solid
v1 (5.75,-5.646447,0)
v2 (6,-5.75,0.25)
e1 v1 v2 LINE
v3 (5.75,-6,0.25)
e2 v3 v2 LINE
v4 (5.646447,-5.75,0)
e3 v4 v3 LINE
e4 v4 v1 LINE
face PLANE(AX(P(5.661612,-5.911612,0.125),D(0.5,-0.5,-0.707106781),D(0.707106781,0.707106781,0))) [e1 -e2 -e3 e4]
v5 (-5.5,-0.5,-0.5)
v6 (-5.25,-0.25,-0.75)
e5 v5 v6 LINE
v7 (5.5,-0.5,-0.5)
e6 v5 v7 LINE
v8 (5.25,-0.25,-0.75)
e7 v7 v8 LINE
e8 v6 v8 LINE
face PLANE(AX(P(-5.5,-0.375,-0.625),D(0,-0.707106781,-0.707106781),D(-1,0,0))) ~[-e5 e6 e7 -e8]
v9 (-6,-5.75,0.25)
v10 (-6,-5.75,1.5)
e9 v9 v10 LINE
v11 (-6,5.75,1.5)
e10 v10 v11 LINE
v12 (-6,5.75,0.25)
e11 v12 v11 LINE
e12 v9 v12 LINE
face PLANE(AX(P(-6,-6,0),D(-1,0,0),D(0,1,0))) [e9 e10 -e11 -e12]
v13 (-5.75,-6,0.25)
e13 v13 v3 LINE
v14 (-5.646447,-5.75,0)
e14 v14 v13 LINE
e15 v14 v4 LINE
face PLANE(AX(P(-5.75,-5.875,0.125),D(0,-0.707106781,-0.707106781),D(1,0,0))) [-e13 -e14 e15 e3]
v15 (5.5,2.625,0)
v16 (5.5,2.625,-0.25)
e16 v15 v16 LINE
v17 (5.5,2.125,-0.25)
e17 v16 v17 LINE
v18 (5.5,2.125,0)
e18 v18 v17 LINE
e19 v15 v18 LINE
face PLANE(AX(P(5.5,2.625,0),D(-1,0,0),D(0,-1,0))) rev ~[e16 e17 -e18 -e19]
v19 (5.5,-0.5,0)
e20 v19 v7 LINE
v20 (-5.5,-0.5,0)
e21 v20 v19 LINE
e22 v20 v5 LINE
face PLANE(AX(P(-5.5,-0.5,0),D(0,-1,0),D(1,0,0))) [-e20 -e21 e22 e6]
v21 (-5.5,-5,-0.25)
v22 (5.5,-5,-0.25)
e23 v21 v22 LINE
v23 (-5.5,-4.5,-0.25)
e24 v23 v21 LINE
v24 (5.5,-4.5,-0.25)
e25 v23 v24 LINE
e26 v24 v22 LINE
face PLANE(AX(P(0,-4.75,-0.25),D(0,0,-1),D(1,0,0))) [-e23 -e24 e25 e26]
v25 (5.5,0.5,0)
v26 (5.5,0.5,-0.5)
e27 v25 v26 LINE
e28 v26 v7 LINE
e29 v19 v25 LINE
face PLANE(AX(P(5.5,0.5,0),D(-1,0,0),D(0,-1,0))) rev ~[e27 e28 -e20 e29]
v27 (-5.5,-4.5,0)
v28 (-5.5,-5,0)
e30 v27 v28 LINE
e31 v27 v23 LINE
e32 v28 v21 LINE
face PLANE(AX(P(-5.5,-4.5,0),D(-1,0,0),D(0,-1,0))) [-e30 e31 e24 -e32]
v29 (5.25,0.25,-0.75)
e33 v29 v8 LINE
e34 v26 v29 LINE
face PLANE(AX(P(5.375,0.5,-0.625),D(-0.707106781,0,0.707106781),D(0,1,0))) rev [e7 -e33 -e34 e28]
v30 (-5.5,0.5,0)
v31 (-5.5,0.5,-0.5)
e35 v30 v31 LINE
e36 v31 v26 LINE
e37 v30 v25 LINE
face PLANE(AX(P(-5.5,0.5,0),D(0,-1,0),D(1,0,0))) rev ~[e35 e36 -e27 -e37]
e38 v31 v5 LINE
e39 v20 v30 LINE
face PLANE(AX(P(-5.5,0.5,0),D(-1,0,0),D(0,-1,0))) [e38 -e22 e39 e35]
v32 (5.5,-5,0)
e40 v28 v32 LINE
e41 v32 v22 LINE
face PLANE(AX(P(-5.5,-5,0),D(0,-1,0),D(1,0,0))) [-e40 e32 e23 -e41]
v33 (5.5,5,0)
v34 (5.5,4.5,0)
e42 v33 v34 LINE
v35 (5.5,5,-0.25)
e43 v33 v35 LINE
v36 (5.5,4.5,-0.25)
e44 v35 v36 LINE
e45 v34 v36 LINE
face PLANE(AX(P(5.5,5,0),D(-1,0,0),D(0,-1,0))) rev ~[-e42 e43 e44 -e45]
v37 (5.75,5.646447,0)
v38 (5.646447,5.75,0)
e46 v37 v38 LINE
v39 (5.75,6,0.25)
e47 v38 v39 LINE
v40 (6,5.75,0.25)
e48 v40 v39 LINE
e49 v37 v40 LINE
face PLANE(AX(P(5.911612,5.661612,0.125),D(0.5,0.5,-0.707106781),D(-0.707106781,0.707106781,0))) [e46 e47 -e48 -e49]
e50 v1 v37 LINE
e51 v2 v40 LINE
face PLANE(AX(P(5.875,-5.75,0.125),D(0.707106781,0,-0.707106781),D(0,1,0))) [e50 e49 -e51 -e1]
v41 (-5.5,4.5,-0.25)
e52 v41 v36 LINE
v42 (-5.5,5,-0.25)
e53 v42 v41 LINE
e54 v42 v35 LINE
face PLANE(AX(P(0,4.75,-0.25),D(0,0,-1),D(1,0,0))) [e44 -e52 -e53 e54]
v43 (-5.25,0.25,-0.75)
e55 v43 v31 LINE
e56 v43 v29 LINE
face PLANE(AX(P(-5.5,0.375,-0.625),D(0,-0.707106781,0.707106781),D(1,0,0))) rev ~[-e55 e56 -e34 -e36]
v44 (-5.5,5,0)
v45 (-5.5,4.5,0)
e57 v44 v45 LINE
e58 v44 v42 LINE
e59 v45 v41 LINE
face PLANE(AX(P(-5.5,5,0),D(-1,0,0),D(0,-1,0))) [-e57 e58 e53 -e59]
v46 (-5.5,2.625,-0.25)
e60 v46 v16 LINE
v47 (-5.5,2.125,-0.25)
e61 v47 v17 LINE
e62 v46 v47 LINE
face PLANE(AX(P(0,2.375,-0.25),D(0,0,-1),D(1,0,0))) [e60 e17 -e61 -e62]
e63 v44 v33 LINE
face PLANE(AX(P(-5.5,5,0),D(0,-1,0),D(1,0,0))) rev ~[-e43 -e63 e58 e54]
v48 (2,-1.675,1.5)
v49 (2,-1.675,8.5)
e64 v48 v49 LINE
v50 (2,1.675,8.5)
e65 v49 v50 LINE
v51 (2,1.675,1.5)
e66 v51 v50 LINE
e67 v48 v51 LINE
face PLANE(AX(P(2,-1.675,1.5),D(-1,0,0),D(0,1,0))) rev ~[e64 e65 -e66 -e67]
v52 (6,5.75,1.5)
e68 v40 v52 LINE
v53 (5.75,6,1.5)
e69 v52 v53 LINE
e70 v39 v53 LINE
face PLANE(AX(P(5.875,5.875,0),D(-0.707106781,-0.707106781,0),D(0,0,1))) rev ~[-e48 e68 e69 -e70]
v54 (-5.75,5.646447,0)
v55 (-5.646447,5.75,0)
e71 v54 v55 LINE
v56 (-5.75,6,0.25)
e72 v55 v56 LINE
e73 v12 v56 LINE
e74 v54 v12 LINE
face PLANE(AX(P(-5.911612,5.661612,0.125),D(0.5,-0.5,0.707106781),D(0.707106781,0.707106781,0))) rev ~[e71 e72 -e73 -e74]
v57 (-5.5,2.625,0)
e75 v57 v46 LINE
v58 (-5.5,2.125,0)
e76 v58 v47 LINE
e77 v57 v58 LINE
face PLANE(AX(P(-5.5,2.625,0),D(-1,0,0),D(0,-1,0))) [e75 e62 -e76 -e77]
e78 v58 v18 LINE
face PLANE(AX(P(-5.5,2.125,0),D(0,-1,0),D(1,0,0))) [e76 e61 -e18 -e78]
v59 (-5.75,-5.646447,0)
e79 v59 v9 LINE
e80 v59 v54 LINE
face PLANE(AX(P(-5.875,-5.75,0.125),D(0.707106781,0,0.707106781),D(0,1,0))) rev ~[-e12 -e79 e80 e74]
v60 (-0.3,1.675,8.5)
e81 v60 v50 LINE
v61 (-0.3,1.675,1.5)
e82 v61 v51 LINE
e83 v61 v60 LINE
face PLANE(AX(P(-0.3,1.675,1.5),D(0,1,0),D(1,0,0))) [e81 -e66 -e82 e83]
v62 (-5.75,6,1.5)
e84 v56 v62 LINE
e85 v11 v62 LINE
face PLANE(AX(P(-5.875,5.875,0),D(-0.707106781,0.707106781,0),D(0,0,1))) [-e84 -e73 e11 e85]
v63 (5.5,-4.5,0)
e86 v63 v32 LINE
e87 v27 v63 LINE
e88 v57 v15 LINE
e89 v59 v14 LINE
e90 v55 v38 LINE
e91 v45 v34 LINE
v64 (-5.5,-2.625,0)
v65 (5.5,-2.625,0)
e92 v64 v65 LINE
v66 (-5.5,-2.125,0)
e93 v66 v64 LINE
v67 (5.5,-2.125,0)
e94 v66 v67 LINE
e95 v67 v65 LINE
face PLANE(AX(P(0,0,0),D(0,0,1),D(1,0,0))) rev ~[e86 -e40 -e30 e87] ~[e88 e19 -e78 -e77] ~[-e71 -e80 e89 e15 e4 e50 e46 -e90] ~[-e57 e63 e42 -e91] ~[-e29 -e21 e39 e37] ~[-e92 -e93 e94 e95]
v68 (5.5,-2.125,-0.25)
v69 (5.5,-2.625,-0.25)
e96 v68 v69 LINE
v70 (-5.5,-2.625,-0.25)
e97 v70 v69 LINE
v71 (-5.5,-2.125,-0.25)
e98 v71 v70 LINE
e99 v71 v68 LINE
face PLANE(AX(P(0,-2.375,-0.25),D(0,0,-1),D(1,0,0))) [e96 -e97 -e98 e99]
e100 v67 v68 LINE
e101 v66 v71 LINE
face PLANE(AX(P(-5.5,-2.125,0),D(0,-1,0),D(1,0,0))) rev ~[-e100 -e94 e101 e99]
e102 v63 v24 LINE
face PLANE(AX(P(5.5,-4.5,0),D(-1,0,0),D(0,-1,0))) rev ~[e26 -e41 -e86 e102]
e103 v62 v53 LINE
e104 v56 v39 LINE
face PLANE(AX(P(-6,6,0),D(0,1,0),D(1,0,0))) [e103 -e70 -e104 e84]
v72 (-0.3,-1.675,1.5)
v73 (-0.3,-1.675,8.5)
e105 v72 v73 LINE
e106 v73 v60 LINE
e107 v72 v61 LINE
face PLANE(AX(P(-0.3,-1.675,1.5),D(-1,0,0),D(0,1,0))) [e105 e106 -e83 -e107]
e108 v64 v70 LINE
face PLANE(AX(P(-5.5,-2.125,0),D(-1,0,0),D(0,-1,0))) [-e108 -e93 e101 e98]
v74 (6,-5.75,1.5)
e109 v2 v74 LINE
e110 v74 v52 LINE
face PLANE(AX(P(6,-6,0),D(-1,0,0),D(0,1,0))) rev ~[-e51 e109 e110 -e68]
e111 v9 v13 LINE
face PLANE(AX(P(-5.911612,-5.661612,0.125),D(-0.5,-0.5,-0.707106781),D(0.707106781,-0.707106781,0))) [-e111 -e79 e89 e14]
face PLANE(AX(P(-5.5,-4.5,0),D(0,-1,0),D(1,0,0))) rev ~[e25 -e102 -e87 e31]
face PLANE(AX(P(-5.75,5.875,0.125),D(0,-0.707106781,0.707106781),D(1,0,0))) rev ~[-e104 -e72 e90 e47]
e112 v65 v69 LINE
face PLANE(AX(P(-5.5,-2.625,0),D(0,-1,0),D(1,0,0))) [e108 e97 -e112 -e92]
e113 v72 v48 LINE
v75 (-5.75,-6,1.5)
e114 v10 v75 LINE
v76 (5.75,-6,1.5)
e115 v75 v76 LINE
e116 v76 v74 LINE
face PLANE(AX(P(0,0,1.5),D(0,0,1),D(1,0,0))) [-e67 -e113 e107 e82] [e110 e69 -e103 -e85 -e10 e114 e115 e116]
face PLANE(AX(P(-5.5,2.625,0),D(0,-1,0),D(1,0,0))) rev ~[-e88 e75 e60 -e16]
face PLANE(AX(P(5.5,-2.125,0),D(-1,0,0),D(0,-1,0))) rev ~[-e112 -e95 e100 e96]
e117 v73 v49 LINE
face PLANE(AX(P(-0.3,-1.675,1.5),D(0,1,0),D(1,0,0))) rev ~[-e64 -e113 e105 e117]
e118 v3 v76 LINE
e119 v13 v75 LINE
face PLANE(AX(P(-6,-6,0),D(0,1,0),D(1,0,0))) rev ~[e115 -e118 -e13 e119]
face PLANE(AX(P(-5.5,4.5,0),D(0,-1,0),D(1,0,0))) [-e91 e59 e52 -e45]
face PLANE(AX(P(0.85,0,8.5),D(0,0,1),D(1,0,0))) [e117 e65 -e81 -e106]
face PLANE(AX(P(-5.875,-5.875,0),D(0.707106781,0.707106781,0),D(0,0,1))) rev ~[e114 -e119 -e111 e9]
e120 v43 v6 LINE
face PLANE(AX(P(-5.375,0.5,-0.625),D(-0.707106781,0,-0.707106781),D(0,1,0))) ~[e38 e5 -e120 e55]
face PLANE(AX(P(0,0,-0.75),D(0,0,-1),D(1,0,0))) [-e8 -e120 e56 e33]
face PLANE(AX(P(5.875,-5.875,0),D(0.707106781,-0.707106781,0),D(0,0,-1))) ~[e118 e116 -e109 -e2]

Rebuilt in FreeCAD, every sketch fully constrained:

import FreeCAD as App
import Part
import Sketcher

V = App.Vector


def edges_at(feature, points):
    """Names of the edges that pass closest to the given points."""
    edges = feature.Shape.Edges
    near = lambda p: min(range(len(edges)), key=lambda i: edges[i].distToShape(Part.Vertex(*p))[0])
    return sorted({f"Edge{near(p) + 1}" for p in points})

doc = App.newDocument("Part")
params = doc.addObject("Spreadsheet::Sheet", "Params")
for row, (alias, value) in enumerate([
    ("sketch1_width", "12 mm"),
    ("pad1_length", "1.5 mm"),
    ("sketch2_width", "2.3 mm"),
    ("sketch2_height", "3.35 mm"),
    ("pad2_length", "7 mm"),
    ("sketch3_width", "11 mm"),
    ("sketch3_height", "0.5 mm"),
    ("pad3_length", "0.25 mm"),
    ("linearpattern_pitch", "2.375 mm"),
    ("sketch4_width", "11 mm"),
    ("sketch4_height", "1 mm"),
    ("pad4_length", "0.75 mm"),
    ("chamfer_size", "0.25 mm"),
    ("chamfer2_size", "0.25 mm"),
    ("chamfer3_size", "0.25 mm"),
], start=1):
    params.set(f"A{row}", alias)
    params.set(f"B{row}", "=" + value)
    params.setAlias(f"B{row}", alias)

body = doc.addObject("PartDesign::Body", "Body")

sketch1 = body.newObject("Sketcher::SketchObject", "Sketch")
sketch1.AttachmentSupport = (doc.getObject("XY_Plane"), [""])
sketch1.MapMode = "FlatFace"
sketch1.addGeometry([
    Part.LineSegment(V(-6, 6, 0), V(-6, -6, 0)),
    Part.LineSegment(V(-6, -6, 0), V(6, -6, 0)),
    Part.LineSegment(V(6, -6, 0), V(6, 6, 0)),
    Part.LineSegment(V(6, 6, 0), V(-6, 6, 0)),
], False)
sketch1.addConstraint([
    Sketcher.Constraint("Coincident", 0, 2, 1, 1),
    Sketcher.Constraint("Coincident", 1, 2, 2, 1),
    Sketcher.Constraint("Coincident", 2, 2, 3, 1),
    Sketcher.Constraint("Coincident", 3, 2, 0, 1),
    Sketcher.Constraint("Vertical", 0),
    Sketcher.Constraint("Horizontal", 1),
    Sketcher.Constraint("Vertical", 2),
    Sketcher.Constraint("Horizontal", 3),
    Sketcher.Constraint("Symmetric", 0, 2, 2, 2, -1, 1),
    Sketcher.Constraint("Equal", 3, 0),
    Sketcher.Constraint("DistanceX", 1, 1, 1, 2, 12.0),
])
sketch1.setExpression("Constraints[10]", "Params.sketch1_width")
pad1 = body.newObject("PartDesign::Pad", "Pad")
pad1.Profile = sketch1
pad1.setExpression("Length", "Params.pad1_length")

sketch2 = body.newObject("Sketcher::SketchObject", "Sketch001")
sketch2.AttachmentSupport = (doc.getObject("XY_Plane"), [""])
sketch2.MapMode = "FlatFace"
sketch2.AttachmentOffset = App.Placement(V(0, 0, 1.5), App.Rotation())
sketch2.addGeometry([
    Part.LineSegment(V(-0.3, 1.7, 0), V(-0.3, -1.7, 0)),
    Part.LineSegment(V(-0.3, -1.7, 0), V(2, -1.7, 0)),
    Part.LineSegment(V(2, -1.7, 0), V(2, 1.7, 0)),
    Part.LineSegment(V(2, 1.7, 0), V(-0.3, 1.7, 0)),
], False)
sketch2.addConstraint([
    Sketcher.Constraint("Coincident", 0, 2, 1, 1),
    Sketcher.Constraint("Coincident", 1, 2, 2, 1),
    Sketcher.Constraint("Coincident", 2, 2, 3, 1),
    Sketcher.Constraint("Coincident", 3, 2, 0, 1),
    Sketcher.Constraint("Vertical", 0),
    Sketcher.Constraint("Horizontal", 1),
    Sketcher.Constraint("Vertical", 2),
    Sketcher.Constraint("Horizontal", 3),
    Sketcher.Constraint("DistanceX", 1, 1, 1, 2, 2.3),
    Sketcher.Constraint("DistanceX", -1, 1, 1, 2, 2.0),
    Sketcher.Constraint("DistanceY", 0, 2, 0, 1, 3.35),
    Sketcher.Constraint("DistanceY", 0, 2, -1, 1, 1.675),
])
sketch2.setExpression("Constraints[8]", "Params.sketch2_width")
sketch2.setExpression("Constraints[10]", "Params.sketch2_height")
pad2 = body.newObject("PartDesign::Pad", "Pad001")
pad2.Profile = sketch2
pad2.setExpression("Length", "Params.pad2_length")

sketch3 = body.newObject("Sketcher::SketchObject", "Sketch002")
sketch3.AttachmentSupport = (doc.getObject("XY_Plane"), [""])
sketch3.MapMode = "FlatFace"
sketch3.addGeometry([
    Part.LineSegment(V(-5.5, -5, 0), V(-5.5, -4.5, 0)),
    Part.LineSegment(V(-5.5, -4.5, 0), V(5.5, -4.5, 0)),
    Part.LineSegment(V(5.5, -4.5, 0), V(5.5, -5, 0)),
    Part.LineSegment(V(5.5, -5, 0), V(-5.5, -5, 0)),
], False)
sketch3.addConstraint([
    Sketcher.Constraint("Coincident", 0, 2, 1, 1),
    Sketcher.Constraint("Coincident", 1, 2, 2, 1),
    Sketcher.Constraint("Coincident", 2, 2, 3, 1),
    Sketcher.Constraint("Coincident", 3, 2, 0, 1),
    Sketcher.Constraint("Vertical", 0),
    Sketcher.Constraint("Horizontal", 1),
    Sketcher.Constraint("Vertical", 2),
    Sketcher.Constraint("Horizontal", 3),
    Sketcher.Constraint("DistanceX", 1, 1, 1, 2, 11.0),
    Sketcher.Constraint("DistanceY", 0, 1, 0, 2, 0.5),
    Sketcher.Constraint("DistanceY", 2, 2, -1, 1, 5.0),
    Sketcher.Constraint("DistanceX", 0, 2, -1, 1, 5.5),
])
sketch3.setExpression("Constraints[8]", "Params.sketch3_width")
sketch3.setExpression("Constraints[9]", "Params.sketch3_height")
pad3 = body.newObject("PartDesign::Pad", "Pad002")
pad3.Profile = sketch3
pad3.setExpression("Length", "Params.pad3_length")
pad3.Reversed = True
doc.recompute()

linearpattern = body.newObject("PartDesign::LinearPattern", "LinearPattern")
linearpattern.Originals = [pad3]
linearpattern.Direction = (doc.getObject("Y_Axis"), [""])
linearpattern.Mode = "offset"
linearpattern.setExpression("Offset", "Params.linearpattern_pitch")
linearpattern.Occurrences = 5
body.Tip = linearpattern

sketch4 = body.newObject("Sketcher::SketchObject", "Sketch003")
sketch4.AttachmentSupport = (doc.getObject("XY_Plane"), [""])
sketch4.MapMode = "FlatFace"
sketch4.addGeometry([
    Part.LineSegment(V(-5.5, -0.5, 0), V(-5.5, 0.5, 0)),
    Part.LineSegment(V(-5.5, 0.5, 0), V(5.5, 0.5, 0)),
    Part.LineSegment(V(5.5, 0.5, 0), V(5.5, -0.5, 0)),
    Part.LineSegment(V(5.5, -0.5, 0), V(-5.5, -0.5, 0)),
], False)
sketch4.addConstraint([
    Sketcher.Constraint("Coincident", 0, 2, 1, 1),
    Sketcher.Constraint("Coincident", 1, 2, 2, 1),
    Sketcher.Constraint("Coincident", 2, 2, 3, 1),
    Sketcher.Constraint("Coincident", 3, 2, 0, 1),
    Sketcher.Constraint("Vertical", 0),
    Sketcher.Constraint("Horizontal", 1),
    Sketcher.Constraint("Vertical", 2),
    Sketcher.Constraint("Horizontal", 3),
    Sketcher.Constraint("Symmetric", 0, 2, 2, 2, -1, 1),
    Sketcher.Constraint("DistanceX", 1, 1, 1, 2, 11.0),
    Sketcher.Constraint("DistanceY", 0, 1, 0, 2, 1.0),
])
sketch4.setExpression("Constraints[9]", "Params.sketch4_width")
sketch4.setExpression("Constraints[10]", "Params.sketch4_height")
pad4 = body.newObject("PartDesign::Pad", "Pad003")
pad4.Profile = sketch4
pad4.setExpression("Length", "Params.pad4_length")
pad4.Reversed = True
doc.recompute()

chamfer = body.newObject("PartDesign::Chamfer", "Chamfer")
chamfer.Base = (pad4, edges_at(pad4, [
    (5.5, 0, -0.75),
    (0, 0.5, -0.75),
    (0, -0.5, -0.75),
    (-5.5, 0, -0.75),
]))
chamfer.setExpression("Size", "Params.chamfer_size")
doc.recompute()

chamfer2 = body.newObject("PartDesign::Chamfer", "Chamfer001")
chamfer2.Base = (chamfer, edges_at(chamfer, [
    (6, -6, 0.75),
    (-6, -6, 0.75),
    (-6, 6, 0.75),
    (6, 6, 0.75),
]))
chamfer2.setExpression("Size", "Params.chamfer2_size")
doc.recompute()

chamfer3 = body.newObject("PartDesign::Chamfer", "Chamfer002")
chamfer3.Base = (chamfer2, edges_at(chamfer2, [
    (0, -6, 0),
    (6, 0, 0),
    (5.875, -5.875, 0),
    (-5.875, -5.875, 0),
    (-6, 0, 0),
    (0, 6, 0),
    (-5.875, 5.875, 0),
    (5.875, 5.875, 0),
]))
chamfer3.setExpression("Size", "Params.chamfer3_size")

doc.recompute()
